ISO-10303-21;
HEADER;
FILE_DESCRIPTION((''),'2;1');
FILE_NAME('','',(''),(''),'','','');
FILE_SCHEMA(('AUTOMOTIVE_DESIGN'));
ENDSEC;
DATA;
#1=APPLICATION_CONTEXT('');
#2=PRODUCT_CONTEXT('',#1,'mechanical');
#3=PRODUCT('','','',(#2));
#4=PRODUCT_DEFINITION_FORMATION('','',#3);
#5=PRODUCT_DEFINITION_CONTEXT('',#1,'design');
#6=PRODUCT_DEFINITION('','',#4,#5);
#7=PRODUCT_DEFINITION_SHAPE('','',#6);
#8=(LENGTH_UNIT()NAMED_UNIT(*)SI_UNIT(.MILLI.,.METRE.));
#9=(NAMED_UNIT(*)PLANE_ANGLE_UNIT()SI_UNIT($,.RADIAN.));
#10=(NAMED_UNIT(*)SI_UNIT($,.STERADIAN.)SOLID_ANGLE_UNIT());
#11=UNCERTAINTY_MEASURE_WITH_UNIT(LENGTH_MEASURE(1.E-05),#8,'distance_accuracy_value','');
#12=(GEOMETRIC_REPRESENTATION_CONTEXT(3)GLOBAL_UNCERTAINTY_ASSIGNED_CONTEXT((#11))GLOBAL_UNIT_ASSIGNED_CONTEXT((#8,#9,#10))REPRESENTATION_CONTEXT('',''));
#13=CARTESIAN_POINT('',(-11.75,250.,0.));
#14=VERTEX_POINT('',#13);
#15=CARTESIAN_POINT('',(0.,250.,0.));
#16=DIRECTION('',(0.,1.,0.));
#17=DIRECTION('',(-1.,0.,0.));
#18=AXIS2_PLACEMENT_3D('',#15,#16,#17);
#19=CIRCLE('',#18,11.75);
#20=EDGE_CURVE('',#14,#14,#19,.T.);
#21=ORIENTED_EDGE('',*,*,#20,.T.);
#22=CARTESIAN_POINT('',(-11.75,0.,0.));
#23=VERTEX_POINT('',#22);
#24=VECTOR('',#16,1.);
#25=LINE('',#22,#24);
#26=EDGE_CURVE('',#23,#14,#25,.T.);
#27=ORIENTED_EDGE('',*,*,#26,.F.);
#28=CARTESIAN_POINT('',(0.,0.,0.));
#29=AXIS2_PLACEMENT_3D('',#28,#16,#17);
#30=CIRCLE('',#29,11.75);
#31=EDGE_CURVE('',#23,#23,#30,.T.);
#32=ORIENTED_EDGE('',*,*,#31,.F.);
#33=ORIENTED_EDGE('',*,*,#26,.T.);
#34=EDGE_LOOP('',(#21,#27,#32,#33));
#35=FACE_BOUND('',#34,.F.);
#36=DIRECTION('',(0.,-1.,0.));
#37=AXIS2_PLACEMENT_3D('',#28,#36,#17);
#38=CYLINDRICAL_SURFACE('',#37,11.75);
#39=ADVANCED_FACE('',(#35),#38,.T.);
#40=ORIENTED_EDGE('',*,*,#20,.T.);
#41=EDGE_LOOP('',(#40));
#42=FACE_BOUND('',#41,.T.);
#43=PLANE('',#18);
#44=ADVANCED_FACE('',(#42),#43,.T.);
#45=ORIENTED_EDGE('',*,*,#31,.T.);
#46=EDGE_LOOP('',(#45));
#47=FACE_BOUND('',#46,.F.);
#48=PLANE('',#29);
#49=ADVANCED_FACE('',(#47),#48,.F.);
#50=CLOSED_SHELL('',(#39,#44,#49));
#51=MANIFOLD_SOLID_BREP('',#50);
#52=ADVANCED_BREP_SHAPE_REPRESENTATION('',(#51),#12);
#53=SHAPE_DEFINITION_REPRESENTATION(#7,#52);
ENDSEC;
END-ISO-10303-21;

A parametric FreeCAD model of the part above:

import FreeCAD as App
import Part
import Sketcher

V = App.Vector
Q = App.Units.Quantity

doc = App.newDocument("Part")
body = doc.addObject("PartDesign::Body", "Body")

sketch1 = body.newObject("Sketcher::SketchObject", "Sketch")
sketch1.AttachmentSupport = (doc.getObject("XZ_Plane"), [""])
sketch1.MapMode = "FlatFace"
sketch1.addGeometry(Part.Circle(V(0, 0, 0), V(0, 0, 1), 12), False)
sketch1.addConstraint([
    Sketcher.Constraint("Coincident", 0, 3, -1, 1),
    Sketcher.Constraint("Diameter", 0, Q("23.5 mm")),
])
pad1 = body.newObject("PartDesign::Pad", "Pad")
pad1.Profile = sketch1
pad1.Length = 250
pad1.Reversed = True

doc.recompute()
